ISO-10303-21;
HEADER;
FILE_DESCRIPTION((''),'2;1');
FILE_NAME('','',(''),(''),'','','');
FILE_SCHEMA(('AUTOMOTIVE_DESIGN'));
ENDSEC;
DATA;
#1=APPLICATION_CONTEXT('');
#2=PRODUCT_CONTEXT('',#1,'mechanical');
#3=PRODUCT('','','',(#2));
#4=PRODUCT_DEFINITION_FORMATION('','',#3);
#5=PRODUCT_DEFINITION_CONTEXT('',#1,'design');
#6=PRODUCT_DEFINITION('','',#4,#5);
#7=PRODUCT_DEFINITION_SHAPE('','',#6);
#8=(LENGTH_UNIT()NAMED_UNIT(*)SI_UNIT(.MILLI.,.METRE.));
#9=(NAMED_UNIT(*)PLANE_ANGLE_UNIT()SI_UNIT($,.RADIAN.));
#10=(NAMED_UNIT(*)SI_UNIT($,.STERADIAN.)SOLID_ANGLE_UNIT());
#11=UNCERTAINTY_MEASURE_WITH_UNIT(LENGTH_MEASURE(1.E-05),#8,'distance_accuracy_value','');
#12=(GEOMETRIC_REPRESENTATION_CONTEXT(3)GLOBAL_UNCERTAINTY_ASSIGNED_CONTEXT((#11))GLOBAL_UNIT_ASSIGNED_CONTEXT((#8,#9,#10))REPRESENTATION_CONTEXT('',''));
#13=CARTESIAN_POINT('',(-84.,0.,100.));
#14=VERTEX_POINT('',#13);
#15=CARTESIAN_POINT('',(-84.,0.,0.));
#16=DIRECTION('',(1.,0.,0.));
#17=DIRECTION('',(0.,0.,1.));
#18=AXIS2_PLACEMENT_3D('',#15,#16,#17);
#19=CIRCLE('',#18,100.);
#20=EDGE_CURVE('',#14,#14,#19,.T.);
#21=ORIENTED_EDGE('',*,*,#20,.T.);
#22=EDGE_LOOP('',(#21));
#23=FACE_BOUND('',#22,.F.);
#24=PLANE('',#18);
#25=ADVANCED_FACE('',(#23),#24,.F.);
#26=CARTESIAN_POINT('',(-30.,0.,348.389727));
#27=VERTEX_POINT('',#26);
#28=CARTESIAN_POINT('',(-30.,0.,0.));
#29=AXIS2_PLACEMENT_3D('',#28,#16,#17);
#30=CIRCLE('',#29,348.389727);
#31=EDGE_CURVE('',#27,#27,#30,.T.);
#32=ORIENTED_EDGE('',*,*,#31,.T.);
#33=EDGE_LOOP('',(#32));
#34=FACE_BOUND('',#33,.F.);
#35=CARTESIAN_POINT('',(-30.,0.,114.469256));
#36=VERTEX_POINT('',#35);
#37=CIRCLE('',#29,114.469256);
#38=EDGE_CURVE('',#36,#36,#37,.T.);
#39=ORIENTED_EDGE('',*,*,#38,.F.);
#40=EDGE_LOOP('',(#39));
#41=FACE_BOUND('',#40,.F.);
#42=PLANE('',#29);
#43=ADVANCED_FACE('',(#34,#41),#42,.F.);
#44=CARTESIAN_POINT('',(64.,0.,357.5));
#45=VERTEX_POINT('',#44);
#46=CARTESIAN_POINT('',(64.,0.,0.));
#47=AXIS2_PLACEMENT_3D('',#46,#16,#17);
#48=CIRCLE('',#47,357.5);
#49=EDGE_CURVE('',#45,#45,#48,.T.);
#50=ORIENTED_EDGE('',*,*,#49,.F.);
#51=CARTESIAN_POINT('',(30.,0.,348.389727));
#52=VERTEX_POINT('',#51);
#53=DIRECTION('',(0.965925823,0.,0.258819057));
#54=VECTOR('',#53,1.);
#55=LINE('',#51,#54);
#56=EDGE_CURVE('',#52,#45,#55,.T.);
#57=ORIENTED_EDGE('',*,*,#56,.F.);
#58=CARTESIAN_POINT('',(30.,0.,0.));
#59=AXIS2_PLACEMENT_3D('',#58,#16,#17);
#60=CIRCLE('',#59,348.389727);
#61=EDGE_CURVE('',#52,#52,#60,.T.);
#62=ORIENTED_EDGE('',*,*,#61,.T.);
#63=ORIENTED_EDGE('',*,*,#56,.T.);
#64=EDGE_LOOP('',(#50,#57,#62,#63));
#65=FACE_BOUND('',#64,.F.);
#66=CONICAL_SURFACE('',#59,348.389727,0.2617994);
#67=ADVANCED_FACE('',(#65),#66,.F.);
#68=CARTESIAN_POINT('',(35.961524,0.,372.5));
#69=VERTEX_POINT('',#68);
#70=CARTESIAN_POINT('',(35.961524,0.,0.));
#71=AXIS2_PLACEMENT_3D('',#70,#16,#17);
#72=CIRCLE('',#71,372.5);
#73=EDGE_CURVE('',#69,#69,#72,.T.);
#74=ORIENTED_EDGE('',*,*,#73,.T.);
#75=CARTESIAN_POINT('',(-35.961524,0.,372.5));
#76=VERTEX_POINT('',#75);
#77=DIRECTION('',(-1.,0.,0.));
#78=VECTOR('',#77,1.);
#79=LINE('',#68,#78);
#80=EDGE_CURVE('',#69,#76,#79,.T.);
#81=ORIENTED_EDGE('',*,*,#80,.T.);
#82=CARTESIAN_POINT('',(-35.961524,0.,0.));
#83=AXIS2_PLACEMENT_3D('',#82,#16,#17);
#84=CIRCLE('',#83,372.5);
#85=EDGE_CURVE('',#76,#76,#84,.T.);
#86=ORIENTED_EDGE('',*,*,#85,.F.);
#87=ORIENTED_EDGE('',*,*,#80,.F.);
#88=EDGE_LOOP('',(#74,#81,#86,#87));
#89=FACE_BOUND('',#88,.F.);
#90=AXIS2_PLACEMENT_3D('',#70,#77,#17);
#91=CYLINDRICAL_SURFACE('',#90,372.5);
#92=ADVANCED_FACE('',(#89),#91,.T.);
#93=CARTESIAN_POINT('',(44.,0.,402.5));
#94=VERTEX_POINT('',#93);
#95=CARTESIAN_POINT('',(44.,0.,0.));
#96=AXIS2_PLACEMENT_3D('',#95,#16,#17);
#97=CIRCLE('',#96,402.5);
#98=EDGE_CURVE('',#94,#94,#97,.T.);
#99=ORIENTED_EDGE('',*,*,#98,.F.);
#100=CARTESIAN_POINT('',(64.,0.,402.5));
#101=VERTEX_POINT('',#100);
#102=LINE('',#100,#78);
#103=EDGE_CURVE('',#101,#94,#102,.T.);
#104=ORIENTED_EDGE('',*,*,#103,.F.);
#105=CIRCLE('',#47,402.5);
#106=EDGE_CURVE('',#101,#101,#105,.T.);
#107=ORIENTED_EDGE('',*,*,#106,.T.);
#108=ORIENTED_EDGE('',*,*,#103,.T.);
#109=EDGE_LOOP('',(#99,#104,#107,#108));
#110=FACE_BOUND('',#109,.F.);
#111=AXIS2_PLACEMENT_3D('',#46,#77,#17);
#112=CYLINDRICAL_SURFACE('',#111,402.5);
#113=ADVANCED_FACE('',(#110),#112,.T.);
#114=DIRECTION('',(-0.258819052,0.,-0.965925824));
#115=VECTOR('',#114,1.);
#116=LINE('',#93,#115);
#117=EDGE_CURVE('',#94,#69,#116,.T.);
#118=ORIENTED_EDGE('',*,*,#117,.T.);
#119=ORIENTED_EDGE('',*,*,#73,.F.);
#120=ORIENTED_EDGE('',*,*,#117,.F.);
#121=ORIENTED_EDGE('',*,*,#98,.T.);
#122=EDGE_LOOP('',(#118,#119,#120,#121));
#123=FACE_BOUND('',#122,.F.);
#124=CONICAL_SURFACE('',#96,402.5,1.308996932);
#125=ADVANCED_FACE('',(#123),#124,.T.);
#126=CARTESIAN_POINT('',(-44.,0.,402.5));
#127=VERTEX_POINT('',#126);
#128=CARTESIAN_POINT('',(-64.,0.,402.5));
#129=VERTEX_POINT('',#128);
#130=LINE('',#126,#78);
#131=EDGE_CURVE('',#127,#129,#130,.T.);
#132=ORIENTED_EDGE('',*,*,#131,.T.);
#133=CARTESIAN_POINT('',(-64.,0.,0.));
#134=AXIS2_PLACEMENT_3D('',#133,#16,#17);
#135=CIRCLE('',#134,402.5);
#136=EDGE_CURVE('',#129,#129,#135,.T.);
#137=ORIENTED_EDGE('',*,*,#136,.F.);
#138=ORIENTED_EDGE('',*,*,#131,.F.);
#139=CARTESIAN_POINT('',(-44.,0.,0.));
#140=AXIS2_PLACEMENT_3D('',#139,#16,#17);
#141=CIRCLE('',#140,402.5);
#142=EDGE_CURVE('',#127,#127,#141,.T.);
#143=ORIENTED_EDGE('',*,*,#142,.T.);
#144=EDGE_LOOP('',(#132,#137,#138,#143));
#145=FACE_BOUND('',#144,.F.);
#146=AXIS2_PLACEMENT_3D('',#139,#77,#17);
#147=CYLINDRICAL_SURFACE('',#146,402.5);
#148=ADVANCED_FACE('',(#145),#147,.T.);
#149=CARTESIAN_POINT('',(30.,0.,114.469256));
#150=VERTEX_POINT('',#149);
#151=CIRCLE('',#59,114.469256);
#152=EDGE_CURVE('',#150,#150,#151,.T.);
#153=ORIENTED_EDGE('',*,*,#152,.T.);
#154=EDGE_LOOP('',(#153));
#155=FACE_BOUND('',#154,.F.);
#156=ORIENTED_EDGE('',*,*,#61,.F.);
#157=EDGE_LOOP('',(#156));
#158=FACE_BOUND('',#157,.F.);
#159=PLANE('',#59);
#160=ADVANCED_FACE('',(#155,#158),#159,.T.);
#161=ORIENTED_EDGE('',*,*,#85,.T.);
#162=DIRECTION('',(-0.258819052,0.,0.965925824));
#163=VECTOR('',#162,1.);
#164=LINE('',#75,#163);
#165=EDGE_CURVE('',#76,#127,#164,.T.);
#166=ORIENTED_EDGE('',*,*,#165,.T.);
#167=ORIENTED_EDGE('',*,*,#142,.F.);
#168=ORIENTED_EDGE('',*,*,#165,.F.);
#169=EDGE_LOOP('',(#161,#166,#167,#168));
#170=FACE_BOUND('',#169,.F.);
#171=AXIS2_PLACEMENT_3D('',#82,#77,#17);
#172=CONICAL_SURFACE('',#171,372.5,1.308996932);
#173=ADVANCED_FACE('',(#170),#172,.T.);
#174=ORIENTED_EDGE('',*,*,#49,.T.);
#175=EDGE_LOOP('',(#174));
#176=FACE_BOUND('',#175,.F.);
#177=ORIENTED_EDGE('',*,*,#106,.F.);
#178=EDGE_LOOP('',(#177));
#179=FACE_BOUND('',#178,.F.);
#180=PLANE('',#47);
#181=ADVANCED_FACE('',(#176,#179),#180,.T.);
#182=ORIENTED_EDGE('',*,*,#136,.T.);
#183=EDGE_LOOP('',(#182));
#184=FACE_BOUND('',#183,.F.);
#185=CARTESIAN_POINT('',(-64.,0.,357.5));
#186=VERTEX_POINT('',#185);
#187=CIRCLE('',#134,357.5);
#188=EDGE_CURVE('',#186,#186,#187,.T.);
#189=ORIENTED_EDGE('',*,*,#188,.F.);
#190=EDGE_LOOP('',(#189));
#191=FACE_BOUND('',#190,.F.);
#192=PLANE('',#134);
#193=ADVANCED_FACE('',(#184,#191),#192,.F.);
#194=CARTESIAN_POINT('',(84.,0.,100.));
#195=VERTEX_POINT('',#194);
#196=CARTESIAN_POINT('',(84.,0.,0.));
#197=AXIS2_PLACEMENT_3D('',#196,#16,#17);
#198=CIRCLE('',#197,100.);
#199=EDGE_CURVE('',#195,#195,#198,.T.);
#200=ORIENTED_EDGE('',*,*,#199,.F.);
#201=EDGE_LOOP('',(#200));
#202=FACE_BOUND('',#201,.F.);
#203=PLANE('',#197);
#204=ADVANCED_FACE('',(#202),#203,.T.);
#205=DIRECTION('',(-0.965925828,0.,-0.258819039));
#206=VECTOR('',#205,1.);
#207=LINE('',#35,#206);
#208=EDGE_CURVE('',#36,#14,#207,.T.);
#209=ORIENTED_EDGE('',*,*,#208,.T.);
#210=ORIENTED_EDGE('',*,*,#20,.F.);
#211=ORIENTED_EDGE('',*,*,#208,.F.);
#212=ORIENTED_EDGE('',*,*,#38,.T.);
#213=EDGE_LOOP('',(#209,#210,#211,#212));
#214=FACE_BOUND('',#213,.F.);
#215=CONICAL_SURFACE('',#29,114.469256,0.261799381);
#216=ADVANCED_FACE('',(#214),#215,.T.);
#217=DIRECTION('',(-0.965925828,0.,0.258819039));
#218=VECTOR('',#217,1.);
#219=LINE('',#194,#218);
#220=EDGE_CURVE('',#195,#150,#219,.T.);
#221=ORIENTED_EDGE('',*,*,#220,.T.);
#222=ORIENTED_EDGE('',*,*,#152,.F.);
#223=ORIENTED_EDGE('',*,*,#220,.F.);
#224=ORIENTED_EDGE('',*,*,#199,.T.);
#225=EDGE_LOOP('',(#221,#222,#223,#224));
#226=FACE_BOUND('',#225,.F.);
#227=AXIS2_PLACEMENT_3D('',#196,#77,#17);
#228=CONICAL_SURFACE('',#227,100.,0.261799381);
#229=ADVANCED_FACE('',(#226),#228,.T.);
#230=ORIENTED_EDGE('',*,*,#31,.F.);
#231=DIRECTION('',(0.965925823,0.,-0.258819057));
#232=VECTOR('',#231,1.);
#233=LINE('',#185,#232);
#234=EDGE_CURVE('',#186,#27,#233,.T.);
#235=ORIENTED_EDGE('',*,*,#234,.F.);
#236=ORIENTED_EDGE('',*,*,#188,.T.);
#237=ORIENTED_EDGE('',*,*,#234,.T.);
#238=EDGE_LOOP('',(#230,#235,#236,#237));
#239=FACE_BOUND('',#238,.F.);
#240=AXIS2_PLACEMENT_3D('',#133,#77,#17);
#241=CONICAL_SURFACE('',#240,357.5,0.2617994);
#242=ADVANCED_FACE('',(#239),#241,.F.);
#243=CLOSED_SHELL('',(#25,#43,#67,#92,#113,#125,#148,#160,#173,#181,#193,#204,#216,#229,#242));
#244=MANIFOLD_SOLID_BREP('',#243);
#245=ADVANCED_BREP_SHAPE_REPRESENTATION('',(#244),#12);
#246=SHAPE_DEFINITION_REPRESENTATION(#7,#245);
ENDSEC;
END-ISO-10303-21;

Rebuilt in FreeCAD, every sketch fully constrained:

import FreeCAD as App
import Part
import Sketcher
from FreeCAD import Vector
Q = App.Units.Quantity

doc = App.newDocument("Part")
params = doc.addObject("Spreadsheet::Sheet", "Params")
for row, (alias, value) in enumerate([
    ("sketch1_width", "168 mm"),
    ("sketch1_width2", "20 mm"),
    ("sketch1_height", "100 mm"),
    ("sketch1_height2", "45 mm"),
    ("revolution_angle", "360 deg"),
], start=1):
    params.set(f"A{row}", alias)
    params.set(f"B{row}", "=" + value)
    params.setAlias(f"B{row}", alias)

body = doc.addObject("PartDesign::Body", "Body")

sketch1 = body.newObject("Sketcher::SketchObject", "Sketch")
sketch1.AttachmentSupport = (doc.getObject("XZ_Plane"), [""])
sketch1.MapMode = "FlatFace"
sketch1.addGeometry([
    Part.LineSegment(Vector(-84, 100, 0), Vector(-84, 0, 0)),
    Part.LineSegment(Vector(-84, 0, 0), Vector(84, 0, 0)),
    Part.LineSegment(Vector(84, 0, 0), Vector(84, 100, 0)),
    Part.LineSegment(Vector(84, 100, 0), Vector(30, 114.469256, 0)),
    Part.LineSegment(Vector(30, 114.469256, 0), Vector(30, 348.389727, 0)),
    Part.LineSegment(Vector(30, 348.389727, 0), Vector(64, 357.5, 0)),
    Part.LineSegment(Vector(64, 357.5, 0), Vector(64, 402.5, 0)),
    Part.LineSegment(Vector(64, 402.5, 0), Vector(44, 402.5, 0)),
    Part.LineSegment(Vector(44, 402.5, 0), Vector(35.961524, 372.5, 0)),
    Part.LineSegment(Vector(35.961524, 372.5, 0), Vector(-35.961524, 372.5, 0)),
    Part.LineSegment(Vector(-35.961524, 372.5, 0), Vector(-44, 402.5, 0)),
    Part.LineSegment(Vector(-44, 402.5, 0), Vector(-64, 402.5, 0)),
    Part.LineSegment(Vector(-64, 402.5, 0), Vector(-64, 357.5, 0)),
    Part.LineSegment(Vector(-64, 357.5, 0), Vector(-30, 348.389727, 0)),
    Part.LineSegment(Vector(-30, 348.389727, 0), Vector(-30, 114.469256, 0)),
    Part.LineSegment(Vector(-30, 114.469256, 0), Vector(-84, 100, 0)),
], False)
sketch1.addConstraint([
    Sketcher.Constraint("Coincident", 0, 2, 1, 1),
    Sketcher.Constraint("Coincident", 1, 2, 2, 1),
    Sketcher.Constraint("Coincident", 2, 2, 3, 1),
    Sketcher.Constraint("Coincident", 3, 2, 4, 1),
    Sketcher.Constraint("Coincident", 4, 2, 5, 1),
    Sketcher.Constraint("Coincident", 5, 2, 6, 1),
    Sketcher.Constraint("Coincident", 6, 2, 7, 1),
    Sketcher.Constraint("Coincident", 7, 2, 8, 1),
    Sketcher.Constraint("Coincident", 8, 2, 9, 1),
    Sketcher.Constraint("Coincident", 9, 2, 10, 1),
    Sketcher.Constraint("Coincident", 10, 2, 11, 1),
    Sketcher.Constraint("Coincident", 11, 2, 12, 1),
    Sketcher.Constraint("Coincident", 12, 2, 13, 1),
    Sketcher.Constraint("Coincident", 13, 2, 14, 1),
    Sketcher.Constraint("Coincident", 14, 2, 15, 1),
    Sketcher.Constraint("Coincident", 15, 2, 0, 1),
    Sketcher.Constraint("Vertical", 0),
    Sketcher.Constraint("Horizontal", 1),
    Sketcher.Constraint("Vertical", 2),
    Sketcher.Constraint("Vertical", 4),
    Sketcher.Constraint("Vertical", 6),
    Sketcher.Constraint("Horizontal", 7),
    Sketcher.Constraint("Horizontal", 9),
    Sketcher.Constraint("Horizontal", 11),
    Sketcher.Constraint("Vertical", 12),
    Sketcher.Constraint("Vertical", 14),
    Sketcher.Constraint("Symmetric", 0, 2, 1, 2, -1, 1),
    Sketcher.Constraint("Symmetric", 7, 2, 10, 2, -2),
    Sketcher.Constraint("Symmetric", 5, 2, 12, 2, -2),
    Sketcher.Constraint("Symmetric", 4, 2, 13, 2, -2),
    Sketcher.Constraint("Perpendicular", 3, 8),
    Sketcher.Constraint("Perpendicular", 5, 10),
    Sketcher.Constraint("Perpendicular", 8, 13),
    Sketcher.Constraint("Perpendicular", 10, 15),
    Sketcher.Constraint("Horizontal", 3, 2, 14, 2),
    Sketcher.Constraint("DistanceX", 1, 1, 1, 2, 168.0),
    Sketcher.Constraint("DistanceX", 7, 2, 7, 1, 20.0),
    Sketcher.Constraint("DistanceY", 0, 2, 0, 1, 100.0),
    Sketcher.Constraint("DistanceY", 6, 1, 6, 2, 45.0),
    Sketcher.Constraint("Angle", 3, Q("165 deg")),
    Sketcher.Constraint("DistanceX", -1, 1, 3, 2, 30.0),
    Sketcher.Constraint("DistanceX", -1, 1, 5, 2, 64.0),
    Sketcher.Constraint("DistanceY", 8, 2, 7, 2, 30.0),
    Sketcher.Constraint("DistanceY", -1, 1, 5, 2, 357.5),
])
sketch1.setExpression("Constraints[35]", "Params.sketch1_width")
sketch1.setExpression("Constraints[36]", "Params.sketch1_width2")
sketch1.setExpression("Constraints[37]", "Params.sketch1_height")
sketch1.setExpression("Constraints[38]", "Params.sketch1_height2")
revolution = body.newObject("PartDesign::Revolution", "Revolution")
revolution.Profile = sketch1
revolution.ReferenceAxis = (sketch1, ["H_Axis"])
revolution.setExpression("Angle", "Params.revolution_angle")

doc.recompute()
